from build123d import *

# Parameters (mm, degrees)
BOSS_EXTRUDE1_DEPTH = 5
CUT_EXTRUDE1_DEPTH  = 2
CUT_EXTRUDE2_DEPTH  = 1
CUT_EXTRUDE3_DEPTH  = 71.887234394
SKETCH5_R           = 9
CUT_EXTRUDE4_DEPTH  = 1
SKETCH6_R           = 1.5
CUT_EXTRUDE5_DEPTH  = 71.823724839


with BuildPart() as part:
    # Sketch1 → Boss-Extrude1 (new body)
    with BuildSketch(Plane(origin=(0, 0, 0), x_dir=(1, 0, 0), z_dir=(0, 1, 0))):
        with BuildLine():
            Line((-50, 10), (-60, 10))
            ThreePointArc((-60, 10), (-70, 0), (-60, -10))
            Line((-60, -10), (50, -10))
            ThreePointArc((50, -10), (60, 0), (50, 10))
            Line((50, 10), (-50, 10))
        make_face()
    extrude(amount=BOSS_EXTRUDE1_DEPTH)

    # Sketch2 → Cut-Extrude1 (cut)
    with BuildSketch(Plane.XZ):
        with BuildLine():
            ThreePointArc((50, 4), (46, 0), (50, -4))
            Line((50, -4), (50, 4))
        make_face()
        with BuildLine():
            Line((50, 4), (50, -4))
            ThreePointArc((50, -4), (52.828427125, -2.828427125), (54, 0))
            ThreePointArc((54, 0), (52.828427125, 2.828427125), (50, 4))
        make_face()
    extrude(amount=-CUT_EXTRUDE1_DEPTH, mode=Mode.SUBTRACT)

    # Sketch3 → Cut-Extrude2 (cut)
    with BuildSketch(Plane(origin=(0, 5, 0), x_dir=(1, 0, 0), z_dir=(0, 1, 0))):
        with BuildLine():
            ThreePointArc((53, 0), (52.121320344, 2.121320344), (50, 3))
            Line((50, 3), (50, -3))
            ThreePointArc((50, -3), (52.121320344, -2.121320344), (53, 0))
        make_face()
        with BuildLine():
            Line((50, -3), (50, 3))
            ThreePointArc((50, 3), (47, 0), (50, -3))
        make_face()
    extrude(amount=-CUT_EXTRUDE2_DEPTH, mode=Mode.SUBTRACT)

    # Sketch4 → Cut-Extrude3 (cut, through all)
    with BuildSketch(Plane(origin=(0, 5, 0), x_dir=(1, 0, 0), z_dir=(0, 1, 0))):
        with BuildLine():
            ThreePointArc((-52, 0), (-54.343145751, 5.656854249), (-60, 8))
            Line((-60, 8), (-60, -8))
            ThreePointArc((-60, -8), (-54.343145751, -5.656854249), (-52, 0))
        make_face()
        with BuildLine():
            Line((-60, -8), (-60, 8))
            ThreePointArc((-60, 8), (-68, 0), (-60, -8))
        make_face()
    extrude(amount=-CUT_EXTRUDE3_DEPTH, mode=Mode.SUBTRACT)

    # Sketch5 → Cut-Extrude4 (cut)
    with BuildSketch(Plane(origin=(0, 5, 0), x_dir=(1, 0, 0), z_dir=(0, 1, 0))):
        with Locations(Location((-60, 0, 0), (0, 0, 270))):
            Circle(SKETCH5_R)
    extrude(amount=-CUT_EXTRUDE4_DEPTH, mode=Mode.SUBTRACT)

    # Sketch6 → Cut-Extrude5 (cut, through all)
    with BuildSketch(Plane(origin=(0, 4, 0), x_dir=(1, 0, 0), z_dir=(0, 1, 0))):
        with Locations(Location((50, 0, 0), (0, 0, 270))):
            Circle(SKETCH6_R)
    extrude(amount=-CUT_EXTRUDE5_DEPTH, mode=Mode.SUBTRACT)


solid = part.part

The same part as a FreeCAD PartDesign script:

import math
import FreeCAD as App
import Part
import Sketcher
Q = App.Units.Quantity

doc = App.newDocument("Part")
body = doc.addObject("PartDesign::Body", "Body")

sketch1 = body.newObject("Sketcher::SketchObject", "Sketch")
sketch1.AttachmentSupport = (doc.getObject("XZ_Plane"), [""])
sketch1.MapMode = "FlatFace"
sketch1.addGeometry(Part.ArcOfCircle(Part.Circle(App.Vector(-60, 0, 0), App.Vector(0, 0, 1), 10), math.radians(90), math.radians(270)), False)
sketch1.addGeometry(Part.LineSegment(App.Vector(-60, 10, 0), App.Vector(50, 10, 0)), False)
sketch1.addGeometry(Part.ArcOfCircle(Part.Circle(App.Vector(50, 0, 0), App.Vector(0, 0, 1), 10), math.radians(-90), math.radians(90)), False)
sketch1.addGeometry(Part.LineSegment(App.Vector(50, -10, 0), App.Vector(-60, -10, 0)), False)
sketch1.addConstraint(Sketcher.Constraint("Tangent", 0, 1, 1, 1))
sketch1.addConstraint(Sketcher.Constraint("Tangent", 1, 2, 2, 2))
sketch1.addConstraint(Sketcher.Constraint("Tangent", 2, 1, 3, 1))
sketch1.addConstraint(Sketcher.Constraint("Tangent", 3, 2, 0, 2))
sketch1.addConstraint(Sketcher.Constraint("Horizontal", 1))
sketch1.addConstraint(Sketcher.Constraint("Horizontal", 3))
sketch1.addConstraint(Sketcher.Constraint("PointOnObject", 0, 3, -1))
sketch1.addConstraint(Sketcher.Constraint("Radius", 0, Q("10 mm")))
sketch1.addConstraint(Sketcher.Constraint("DistanceX", 1, 1, 1, 2, Q("110 mm")))
sketch1.addConstraint(Sketcher.Constraint("DistanceX", 0, 3, -1, 1, Q("60 mm")))
pad1 = body.newObject("PartDesign::Pad", "Pad")
pad1.Profile = sketch1
pad1.Length = 5
pad1.Reversed = True

sketch2 = body.newObject("Sketcher::SketchObject", "Sketch001")
sketch2.AttachmentSupport = (doc.getObject("XZ_Plane"), [""])
sketch2.MapMode = "FlatFace"
sketch2.addGeometry(Part.ArcOfCircle(Part.Circle(App.Vector(50, 0, 0), App.Vector(0, 0, 1), 4), math.radians(90), math.radians(270)), False)
sketch2.addGeometry(Part.ArcOfCircle(Part.Circle(App.Vector(50, 0, 0), App.Vector(0, 0, 1), 4), math.radians(-90), math.radians(0)), False)
sketch2.addGeometry(Part.ArcOfCircle(Part.Circle(App.Vector(50, 0, 0), App.Vector(0, 0, 1), 4), math.radians(0), math.radians(90)), False)
sketch2.addConstraint(Sketcher.Constraint("Tangent", 0, 2, 1, 1))
sketch2.addConstraint(Sketcher.Constraint("Tangent", 1, 2, 2, 1))
sketch2.addConstraint(Sketcher.Constraint("Tangent", 2, 2, 0, 1))
sketch2.addConstraint(Sketcher.Constraint("Symmetric", 0, 2, 2, 2, -1))
sketch2.addConstraint(Sketcher.Constraint("PointOnObject", 1, 2, -1))
sketch2.addConstraint(Sketcher.Constraint("Vertical", 2, 3, 0, 2))
sketch2.addConstraint(Sketcher.Constraint("Radius", 0, Q("4 mm")))
sketch2.addConstraint(Sketcher.Constraint("DistanceX", -1, 1, 0, 3, Q("50 mm")))
pocket1 = body.newObject("PartDesign::Pocket", "Pocket")
pocket1.Profile = sketch2
pocket1.Length = 2

sketch3 = body.newObject("Sketcher::SketchObject", "Sketch002")
sketch3.AttachmentSupport = (doc.getObject("XZ_Plane"), [""])
sketch3.MapMode = "FlatFace"
sketch3.AttachmentOffset = App.Placement(App.Vector(0, 0, -5), App.Rotation())
sketch3.addGeometry(Part.ArcOfCircle(Part.Circle(App.Vector(50, 0, 0), App.Vector(0, 0, 1), 3), math.radians(-90), math.radians(0)), False)
sketch3.addGeometry(Part.ArcOfCircle(Part.Circle(App.Vector(50, 0, 0), App.Vector(0, 0, 1), 3), math.radians(90), math.radians(270)), False)
sketch3.addGeometry(Part.ArcOfCircle(Part.Circle(App.Vector(50, 0, 0), App.Vector(0, 0, 1), 3), math.radians(0), math.radians(90)), False)
sketch3.addConstraint(Sketcher.Constraint("Tangent", 0, 1, 1, 2))
sketch3.addConstraint(Sketcher.Constraint("Tangent", 1, 1, 2, 2))
sketch3.addConstraint(Sketcher.Constraint("Tangent", 2, 1, 0, 2))
sketch3.addConstraint(Sketcher.Constraint("Symmetric", 0, 1, 1, 1, -1))
sketch3.addConstraint(Sketcher.Constraint("PointOnObject", 2, 1, -1))
sketch3.addConstraint(Sketcher.Constraint("Vertical", 2, 3, 0, 1))
sketch3.addConstraint(Sketcher.Constraint("Radius", 0, Q("3 mm")))
sketch3.addConstraint(Sketcher.Constraint("DistanceX", -1, 1, 0, 3, Q("50 mm")))
pocket2 = body.newObject("PartDesign::Pocket", "Pocket001")
pocket2.Profile = sketch3
pocket2.Length = 1
pocket2.Reversed = True

sketch4 = body.newObject("Sketcher::SketchObject", "Sketch003")
sketch4.AttachmentSupport = (doc.getObject("XZ_Plane"), [""])
sketch4.MapMode = "FlatFace"
sketch4.AttachmentOffset = App.Placement(App.Vector(0, 0, -5), App.Rotation())
sketch4.addGeometry(Part.ArcOfCircle(Part.Circle(App.Vector(-60, 0, 0), App.Vector(0, 0, 1), 8), math.radians(-90), math.radians(0)), False)
sketch4.addGeometry(Part.ArcOfCircle(Part.Circle(App.Vector(-60, 0, 0), App.Vector(0, 0, 1), 8), math.radians(90), math.radians(270)), False)
sketch4.addGeometry(Part.ArcOfCircle(Part.Circle(App.Vector(-60, 0, 0), App.Vector(0, 0, 1), 8), math.radians(0), math.radians(90)), False)
sketch4.addConstraint(Sketcher.Constraint("Tangent", 0, 1, 1, 2))
sketch4.addConstraint(Sketcher.Constraint("Tangent", 1, 1, 2, 2))
sketch4.addConstraint(Sketcher.Constraint("Tangent", 2, 1, 0, 2))
sketch4.addConstraint(Sketcher.Constraint("Symmetric", 0, 1, 1, 1, -1))
sketch4.addConstraint(Sketcher.Constraint("PointOnObject", 2, 1, -1))
sketch4.addConstraint(Sketcher.Constraint("Vertical", 2, 3, 0, 1))
sketch4.addConstraint(Sketcher.Constraint("Radius", 0, Q("8 mm")))
sketch4.addConstraint(Sketcher.Constraint("DistanceX", 0, 3, -1, 1, Q("60 mm")))
pocket3 = body.newObject("PartDesign::Pocket", "Pocket002")
pocket3.Profile = sketch4
pocket3.Type = "ThroughAll"
pocket3.Reversed = True

sketch5 = body.newObject("Sketcher::SketchObject", "Sketch004")
sketch5.AttachmentSupport = (doc.getObject("XZ_Plane"), [""])
sketch5.MapMode = "FlatFace"
sketch5.AttachmentOffset = App.Placement(App.Vector(0, 0, -5), App.Rotation())
sketch5.addGeometry(Part.Circle(App.Vector(-60, 0, 0), App.Vector(0, 0, 1), 9), False)
sketch5.addConstraint(Sketcher.Constraint("PointOnObject", 0, 3, -1))
sketch5.addConstraint(Sketcher.Constraint("Diameter", 0, Q("18 mm")))
sketch5.addConstraint(Sketcher.Constraint("DistanceX", 0, 3, -1, 1, Q("60 mm")))
pocket4 = body.newObject("PartDesign::Pocket", "Pocket003")
pocket4.Profile = sketch5
pocket4.Length = 1
pocket4.Reversed = True

sketch6 = body.newObject("Sketcher::SketchObject", "Sketch005")
sketch6.AttachmentSupport = (doc.getObject("XZ_Plane"), [""])
sketch6.MapMode = "FlatFace"
sketch6.AttachmentOffset = App.Placement(App.Vector(0, 0, -4), App.Rotation())
sketch6.addGeometry(Part.Circle(App.Vector(50, 0, 0), App.Vector(0, 0, 1), 1.5), False)
sketch6.addConstraint(Sketcher.Constraint("PointOnObject", 0, 3, -1))
sketch6.addConstraint(Sketcher.Constraint("Diameter", 0, Q("3 mm")))
sketch6.addConstraint(Sketcher.Constraint("DistanceX", -1, 1, 0, 3, Q("50 mm")))
pocket5 = body.newObject("PartDesign::Pocket", "Pocket004")
pocket5.Profile = sketch6
pocket5.Type = "ThroughAll"
pocket5.Reversed = True

doc.recompute()
